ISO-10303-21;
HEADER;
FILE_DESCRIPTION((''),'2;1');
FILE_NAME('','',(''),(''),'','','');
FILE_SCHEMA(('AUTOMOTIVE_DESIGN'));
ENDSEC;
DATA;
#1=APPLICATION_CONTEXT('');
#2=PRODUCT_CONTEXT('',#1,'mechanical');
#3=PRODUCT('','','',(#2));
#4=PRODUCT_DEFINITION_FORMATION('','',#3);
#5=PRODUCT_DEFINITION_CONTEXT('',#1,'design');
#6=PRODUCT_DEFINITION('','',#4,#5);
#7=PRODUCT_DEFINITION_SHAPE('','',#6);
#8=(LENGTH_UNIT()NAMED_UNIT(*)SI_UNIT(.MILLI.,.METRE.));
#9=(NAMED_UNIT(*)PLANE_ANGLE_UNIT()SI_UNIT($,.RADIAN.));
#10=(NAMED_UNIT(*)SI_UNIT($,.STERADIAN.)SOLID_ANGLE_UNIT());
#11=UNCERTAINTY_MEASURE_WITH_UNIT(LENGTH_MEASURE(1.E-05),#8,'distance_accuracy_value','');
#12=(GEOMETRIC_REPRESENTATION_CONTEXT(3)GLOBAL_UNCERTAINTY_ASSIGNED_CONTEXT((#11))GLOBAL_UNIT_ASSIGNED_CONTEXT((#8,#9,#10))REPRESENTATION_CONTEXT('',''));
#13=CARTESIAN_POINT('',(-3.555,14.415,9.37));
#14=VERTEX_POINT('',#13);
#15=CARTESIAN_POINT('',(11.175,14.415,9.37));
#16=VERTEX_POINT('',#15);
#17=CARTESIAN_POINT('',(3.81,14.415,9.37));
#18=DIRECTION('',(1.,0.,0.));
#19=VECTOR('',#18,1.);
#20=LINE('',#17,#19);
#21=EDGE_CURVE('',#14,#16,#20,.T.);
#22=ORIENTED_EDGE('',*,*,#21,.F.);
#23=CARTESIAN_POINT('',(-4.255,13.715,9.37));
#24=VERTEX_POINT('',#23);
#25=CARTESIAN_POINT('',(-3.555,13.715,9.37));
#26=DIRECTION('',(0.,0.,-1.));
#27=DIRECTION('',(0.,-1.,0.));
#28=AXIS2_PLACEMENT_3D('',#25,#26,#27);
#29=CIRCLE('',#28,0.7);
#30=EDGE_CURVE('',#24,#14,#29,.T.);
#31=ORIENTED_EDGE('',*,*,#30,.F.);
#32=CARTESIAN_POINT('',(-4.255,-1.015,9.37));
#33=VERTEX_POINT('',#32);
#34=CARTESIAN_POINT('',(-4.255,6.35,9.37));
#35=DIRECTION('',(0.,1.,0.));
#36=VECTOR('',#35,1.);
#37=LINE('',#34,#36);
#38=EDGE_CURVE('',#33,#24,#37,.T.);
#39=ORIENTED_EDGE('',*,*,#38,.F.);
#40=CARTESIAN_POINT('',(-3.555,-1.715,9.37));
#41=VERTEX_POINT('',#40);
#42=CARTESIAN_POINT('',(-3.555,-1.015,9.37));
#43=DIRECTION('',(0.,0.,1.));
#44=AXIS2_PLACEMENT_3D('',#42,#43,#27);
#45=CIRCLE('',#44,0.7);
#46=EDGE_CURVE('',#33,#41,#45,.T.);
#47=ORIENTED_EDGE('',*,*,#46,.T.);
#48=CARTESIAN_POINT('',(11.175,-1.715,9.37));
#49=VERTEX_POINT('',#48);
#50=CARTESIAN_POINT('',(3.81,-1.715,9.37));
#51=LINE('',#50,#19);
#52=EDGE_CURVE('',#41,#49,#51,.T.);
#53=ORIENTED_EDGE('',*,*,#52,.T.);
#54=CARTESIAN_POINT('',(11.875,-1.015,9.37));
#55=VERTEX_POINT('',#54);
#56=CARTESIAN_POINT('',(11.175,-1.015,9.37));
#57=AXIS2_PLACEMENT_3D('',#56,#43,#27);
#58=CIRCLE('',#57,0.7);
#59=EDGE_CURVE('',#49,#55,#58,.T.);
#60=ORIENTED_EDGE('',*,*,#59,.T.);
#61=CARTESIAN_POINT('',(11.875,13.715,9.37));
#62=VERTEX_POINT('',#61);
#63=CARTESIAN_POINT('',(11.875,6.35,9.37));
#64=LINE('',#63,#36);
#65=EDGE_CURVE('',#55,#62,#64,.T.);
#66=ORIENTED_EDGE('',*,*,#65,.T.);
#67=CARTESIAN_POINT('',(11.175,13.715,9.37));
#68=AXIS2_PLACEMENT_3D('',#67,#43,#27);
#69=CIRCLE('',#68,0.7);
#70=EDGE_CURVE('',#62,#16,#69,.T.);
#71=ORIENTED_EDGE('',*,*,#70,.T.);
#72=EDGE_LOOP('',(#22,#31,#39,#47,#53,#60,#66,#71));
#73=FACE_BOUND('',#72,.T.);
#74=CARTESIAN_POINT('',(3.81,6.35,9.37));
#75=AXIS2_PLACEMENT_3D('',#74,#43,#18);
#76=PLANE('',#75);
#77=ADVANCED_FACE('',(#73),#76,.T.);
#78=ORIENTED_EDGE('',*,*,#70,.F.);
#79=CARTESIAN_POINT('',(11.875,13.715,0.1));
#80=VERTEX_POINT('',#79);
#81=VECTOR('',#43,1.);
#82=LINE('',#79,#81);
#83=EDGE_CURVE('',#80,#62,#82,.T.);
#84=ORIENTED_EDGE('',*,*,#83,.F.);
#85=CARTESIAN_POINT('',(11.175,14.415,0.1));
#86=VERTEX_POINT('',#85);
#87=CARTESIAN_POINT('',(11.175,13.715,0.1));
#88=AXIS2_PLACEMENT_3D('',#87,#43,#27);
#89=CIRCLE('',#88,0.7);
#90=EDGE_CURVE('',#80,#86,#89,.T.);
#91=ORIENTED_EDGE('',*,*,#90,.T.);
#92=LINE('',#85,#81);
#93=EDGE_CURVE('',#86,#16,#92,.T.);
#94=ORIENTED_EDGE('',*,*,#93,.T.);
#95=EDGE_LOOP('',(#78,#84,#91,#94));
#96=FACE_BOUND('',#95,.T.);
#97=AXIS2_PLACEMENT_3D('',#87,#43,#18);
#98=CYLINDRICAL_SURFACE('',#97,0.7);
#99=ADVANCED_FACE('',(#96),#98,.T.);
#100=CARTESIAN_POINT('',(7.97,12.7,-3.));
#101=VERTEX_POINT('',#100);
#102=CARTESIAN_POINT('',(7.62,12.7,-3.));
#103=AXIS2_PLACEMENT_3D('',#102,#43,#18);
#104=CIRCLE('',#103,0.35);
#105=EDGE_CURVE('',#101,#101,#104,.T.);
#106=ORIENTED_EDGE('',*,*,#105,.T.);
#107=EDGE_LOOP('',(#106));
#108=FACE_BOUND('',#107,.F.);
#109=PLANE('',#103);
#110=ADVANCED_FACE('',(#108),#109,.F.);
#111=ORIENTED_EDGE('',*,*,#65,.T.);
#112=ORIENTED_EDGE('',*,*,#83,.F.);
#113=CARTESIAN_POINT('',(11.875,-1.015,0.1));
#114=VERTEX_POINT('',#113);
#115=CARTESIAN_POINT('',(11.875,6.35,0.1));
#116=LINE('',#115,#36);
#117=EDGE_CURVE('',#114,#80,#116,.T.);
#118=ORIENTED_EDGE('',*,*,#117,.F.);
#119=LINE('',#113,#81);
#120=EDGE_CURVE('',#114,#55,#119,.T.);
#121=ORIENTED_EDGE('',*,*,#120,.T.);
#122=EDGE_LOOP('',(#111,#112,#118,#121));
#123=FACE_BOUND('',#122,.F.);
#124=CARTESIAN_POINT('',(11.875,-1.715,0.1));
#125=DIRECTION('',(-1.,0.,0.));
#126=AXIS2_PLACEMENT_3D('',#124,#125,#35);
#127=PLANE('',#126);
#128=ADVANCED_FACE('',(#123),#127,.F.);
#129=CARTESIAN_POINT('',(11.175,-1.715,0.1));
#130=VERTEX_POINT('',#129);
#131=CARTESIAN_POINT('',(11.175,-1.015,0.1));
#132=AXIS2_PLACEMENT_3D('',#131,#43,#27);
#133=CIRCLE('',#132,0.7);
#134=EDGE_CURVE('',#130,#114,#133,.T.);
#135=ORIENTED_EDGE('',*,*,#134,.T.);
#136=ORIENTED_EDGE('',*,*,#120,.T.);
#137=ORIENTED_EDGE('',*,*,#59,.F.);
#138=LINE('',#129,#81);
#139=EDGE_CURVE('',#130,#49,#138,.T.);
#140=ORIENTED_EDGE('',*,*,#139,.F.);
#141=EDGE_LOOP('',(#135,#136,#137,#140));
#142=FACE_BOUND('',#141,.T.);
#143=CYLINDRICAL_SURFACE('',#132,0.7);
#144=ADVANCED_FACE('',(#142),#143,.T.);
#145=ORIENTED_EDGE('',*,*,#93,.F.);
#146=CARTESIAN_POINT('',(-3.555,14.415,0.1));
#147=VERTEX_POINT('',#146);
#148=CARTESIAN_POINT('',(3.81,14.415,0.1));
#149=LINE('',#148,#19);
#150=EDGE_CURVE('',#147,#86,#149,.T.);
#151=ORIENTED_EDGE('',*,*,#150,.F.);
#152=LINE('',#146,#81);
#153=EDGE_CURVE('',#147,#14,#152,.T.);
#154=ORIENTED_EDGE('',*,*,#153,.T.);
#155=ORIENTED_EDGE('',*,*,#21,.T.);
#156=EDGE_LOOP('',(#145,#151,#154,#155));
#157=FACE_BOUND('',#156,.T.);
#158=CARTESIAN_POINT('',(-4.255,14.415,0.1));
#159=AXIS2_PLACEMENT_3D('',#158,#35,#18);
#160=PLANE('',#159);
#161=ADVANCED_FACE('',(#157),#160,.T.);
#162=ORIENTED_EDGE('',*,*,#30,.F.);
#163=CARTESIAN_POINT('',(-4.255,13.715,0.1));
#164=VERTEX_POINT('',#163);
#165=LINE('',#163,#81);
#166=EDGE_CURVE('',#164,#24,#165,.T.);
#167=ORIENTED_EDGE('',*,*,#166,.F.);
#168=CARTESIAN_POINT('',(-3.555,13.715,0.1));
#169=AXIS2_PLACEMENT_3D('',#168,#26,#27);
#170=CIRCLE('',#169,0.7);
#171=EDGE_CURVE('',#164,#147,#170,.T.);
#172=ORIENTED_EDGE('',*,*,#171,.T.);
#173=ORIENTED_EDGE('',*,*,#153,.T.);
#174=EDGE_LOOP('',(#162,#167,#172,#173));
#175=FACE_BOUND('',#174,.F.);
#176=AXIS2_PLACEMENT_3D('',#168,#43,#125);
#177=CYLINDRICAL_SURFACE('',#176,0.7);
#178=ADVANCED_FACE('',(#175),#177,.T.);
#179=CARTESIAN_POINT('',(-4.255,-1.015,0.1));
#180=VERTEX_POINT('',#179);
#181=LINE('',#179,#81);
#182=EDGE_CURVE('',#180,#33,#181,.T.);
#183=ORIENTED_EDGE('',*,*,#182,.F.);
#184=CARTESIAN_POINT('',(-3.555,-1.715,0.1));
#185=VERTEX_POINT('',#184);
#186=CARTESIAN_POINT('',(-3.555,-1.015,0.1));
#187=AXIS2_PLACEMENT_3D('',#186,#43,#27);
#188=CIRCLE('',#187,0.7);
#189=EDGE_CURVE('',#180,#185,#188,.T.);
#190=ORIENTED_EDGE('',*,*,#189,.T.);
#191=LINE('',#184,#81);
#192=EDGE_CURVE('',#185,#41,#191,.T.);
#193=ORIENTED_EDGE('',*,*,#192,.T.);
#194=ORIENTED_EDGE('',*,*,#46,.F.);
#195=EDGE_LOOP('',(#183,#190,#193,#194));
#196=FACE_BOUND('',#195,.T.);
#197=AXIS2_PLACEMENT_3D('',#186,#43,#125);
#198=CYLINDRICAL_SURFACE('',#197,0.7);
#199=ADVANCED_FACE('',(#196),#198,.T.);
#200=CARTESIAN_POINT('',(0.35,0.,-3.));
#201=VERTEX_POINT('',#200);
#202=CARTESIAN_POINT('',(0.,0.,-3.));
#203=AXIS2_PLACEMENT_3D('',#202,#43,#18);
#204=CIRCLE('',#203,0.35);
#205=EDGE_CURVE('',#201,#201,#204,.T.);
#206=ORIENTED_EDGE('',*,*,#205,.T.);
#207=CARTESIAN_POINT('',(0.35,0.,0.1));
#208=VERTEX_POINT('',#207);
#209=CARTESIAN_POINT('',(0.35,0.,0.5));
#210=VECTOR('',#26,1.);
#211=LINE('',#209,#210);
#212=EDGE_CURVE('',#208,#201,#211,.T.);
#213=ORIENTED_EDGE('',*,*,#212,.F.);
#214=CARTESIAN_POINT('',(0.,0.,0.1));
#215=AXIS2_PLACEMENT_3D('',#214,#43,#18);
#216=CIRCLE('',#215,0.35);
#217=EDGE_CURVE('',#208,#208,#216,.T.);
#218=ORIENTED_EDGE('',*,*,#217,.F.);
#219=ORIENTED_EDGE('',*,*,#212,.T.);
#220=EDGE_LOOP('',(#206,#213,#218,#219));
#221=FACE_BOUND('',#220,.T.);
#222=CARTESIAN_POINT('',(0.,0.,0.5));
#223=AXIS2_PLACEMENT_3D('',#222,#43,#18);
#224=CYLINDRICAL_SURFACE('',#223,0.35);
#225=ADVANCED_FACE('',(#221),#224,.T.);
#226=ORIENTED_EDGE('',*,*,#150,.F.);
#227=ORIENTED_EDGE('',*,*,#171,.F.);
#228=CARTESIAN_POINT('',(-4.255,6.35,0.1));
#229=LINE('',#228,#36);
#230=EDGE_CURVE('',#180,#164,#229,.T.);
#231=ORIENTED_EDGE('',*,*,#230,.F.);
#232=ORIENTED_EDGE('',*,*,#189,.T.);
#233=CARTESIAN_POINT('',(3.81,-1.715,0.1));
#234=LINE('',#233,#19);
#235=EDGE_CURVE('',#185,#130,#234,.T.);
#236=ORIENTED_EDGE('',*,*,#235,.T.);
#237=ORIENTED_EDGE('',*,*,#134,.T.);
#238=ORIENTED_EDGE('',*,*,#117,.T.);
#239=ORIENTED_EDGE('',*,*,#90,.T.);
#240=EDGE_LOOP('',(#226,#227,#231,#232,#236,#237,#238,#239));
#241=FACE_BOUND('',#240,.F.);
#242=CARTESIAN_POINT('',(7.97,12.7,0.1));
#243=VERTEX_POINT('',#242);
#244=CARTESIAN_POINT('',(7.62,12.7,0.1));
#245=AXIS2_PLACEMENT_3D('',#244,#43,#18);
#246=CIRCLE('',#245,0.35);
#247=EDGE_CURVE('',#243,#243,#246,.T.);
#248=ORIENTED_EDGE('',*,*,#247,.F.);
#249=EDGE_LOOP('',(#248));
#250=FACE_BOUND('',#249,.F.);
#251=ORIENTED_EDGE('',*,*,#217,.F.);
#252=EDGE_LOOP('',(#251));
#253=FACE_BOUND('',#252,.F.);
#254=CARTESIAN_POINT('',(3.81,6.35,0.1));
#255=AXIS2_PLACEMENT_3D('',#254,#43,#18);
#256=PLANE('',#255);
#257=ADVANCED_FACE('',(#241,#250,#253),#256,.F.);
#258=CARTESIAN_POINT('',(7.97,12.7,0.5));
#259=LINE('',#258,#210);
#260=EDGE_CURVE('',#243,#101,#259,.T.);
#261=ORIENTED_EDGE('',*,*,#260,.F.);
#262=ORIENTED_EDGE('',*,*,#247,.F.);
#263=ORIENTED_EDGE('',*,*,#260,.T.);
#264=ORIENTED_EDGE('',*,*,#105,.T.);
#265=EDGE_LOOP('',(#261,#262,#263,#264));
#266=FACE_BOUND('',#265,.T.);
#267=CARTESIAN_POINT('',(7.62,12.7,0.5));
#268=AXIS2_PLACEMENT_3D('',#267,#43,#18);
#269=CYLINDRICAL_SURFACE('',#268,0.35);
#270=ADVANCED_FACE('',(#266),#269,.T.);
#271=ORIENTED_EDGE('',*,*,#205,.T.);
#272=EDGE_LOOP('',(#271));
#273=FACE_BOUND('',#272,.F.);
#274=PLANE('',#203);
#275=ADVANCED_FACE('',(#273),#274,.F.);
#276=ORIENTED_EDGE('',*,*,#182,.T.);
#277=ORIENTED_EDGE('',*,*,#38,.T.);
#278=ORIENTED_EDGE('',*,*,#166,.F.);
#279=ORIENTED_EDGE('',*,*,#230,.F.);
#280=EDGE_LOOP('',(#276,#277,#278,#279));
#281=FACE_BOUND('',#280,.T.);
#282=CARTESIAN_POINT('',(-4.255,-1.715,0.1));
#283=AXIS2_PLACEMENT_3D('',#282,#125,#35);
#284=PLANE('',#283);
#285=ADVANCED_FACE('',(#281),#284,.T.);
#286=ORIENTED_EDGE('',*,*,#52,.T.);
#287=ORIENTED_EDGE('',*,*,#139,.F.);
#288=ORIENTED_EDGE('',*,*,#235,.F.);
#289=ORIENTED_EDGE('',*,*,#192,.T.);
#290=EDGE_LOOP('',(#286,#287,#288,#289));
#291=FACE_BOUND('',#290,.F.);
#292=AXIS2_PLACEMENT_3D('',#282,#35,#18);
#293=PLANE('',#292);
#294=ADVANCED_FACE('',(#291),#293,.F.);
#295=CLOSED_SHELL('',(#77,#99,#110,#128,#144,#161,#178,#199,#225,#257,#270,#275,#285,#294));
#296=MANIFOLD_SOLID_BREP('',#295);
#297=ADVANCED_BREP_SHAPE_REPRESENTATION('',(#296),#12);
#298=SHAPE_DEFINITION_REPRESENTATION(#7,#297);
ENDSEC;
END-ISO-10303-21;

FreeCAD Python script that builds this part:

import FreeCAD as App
import Part
import Sketcher

V = App.Vector
Q = App.Units.Quantity


def edges_at(feature, points):
    """Names of the edges that pass closest to the given points."""
    edges = feature.Shape.Edges
    near = lambda p: min(range(len(edges)), key=lambda i: edges[i].distToShape(Part.Vertex(*p))[0])
    return sorted({f"Edge{near(p) + 1}" for p in points})


def add_polygon(sketch, points):
    """Adds a closed chain of lines whose ends are joined by coincident constraints."""
    first, n = sketch.GeometryCount, len(points)
    for a, b in zip(points, points[1:] + points[:1]):
        sketch.addGeometry(Part.LineSegment(App.Vector(*a, 0), App.Vector(*b, 0)), False)
    for i in range(n):
        sketch.addConstraint(Sketcher.Constraint("Coincident", first + i, 2, first + (i + 1) % n, 1))

doc = App.newDocument("Part")
body = doc.addObject("PartDesign::Body", "Body")
body.AllowCompound = True

# Sketch on XY plane
sketch1 = doc.addObject("Sketcher::SketchObject", "Sketch")
body.addObject(sketch1)
sketch1.AttachmentSupport = (doc.XY_Plane, [""])
sketch1.MapMode = "FlatFace"
sketch1.AttachmentOffset = App.Placement(V(0, 0, 0.5), App.Rotation())
sketch1.addGeometry(Part.Circle(V(0, 0, 0), V(0, 0, 1), 0.35), False)
sketch1.addGeometry(Part.Circle(V(7.62, 12.7, 0), V(0, 0, 1), 0.35), False)
sketch1.addConstraint(Sketcher.Constraint("Coincident", 0, 3, -1, 1))
sketch1.addConstraint(Sketcher.Constraint("Equal", 0, 1))
sketch1.addConstraint(Sketcher.Constraint("Diameter", 0, Q("0.7 mm")))
sketch1.addConstraint(Sketcher.Constraint("DistanceY", -1, 1, 1, 3, Q("12.7 mm")))
sketch1.addConstraint(Sketcher.Constraint("DistanceX", -1, 1, 1, 3, Q("7.62 mm")))
pad1 = doc.addObject("PartDesign::Pad", "Pad")
body.addObject(pad1)
pad1.Profile = sketch1
pad1.Length = 3.5
pad1.Reversed = True
body2 = doc.addObject("PartDesign::Body", "Body001")

# Sketch on XY plane
sketch2 = doc.addObject("Sketcher::SketchObject", "Sketch001")
body2.addObject(sketch2)
sketch2.AttachmentSupport = (doc.getObject("XY_Plane001"), [""])
sketch2.MapMode = "FlatFace"
sketch2.AttachmentOffset = App.Placement(V(0, 0, 0.1), App.Rotation())
add_polygon(sketch2, [(-4, 14), (-4, -2), (12, -2), (12, 14)])  # lines 0-3
sketch2.addConstraint(Sketcher.Constraint("Vertical", 0))
sketch2.addConstraint(Sketcher.Constraint("Horizontal", 1))
sketch2.addConstraint(Sketcher.Constraint("Vertical", 2))
sketch2.addConstraint(Sketcher.Constraint("Horizontal", 3))
sketch2.addConstraint(Sketcher.Constraint("Equal", 3, 0))
sketch2.addConstraint(Sketcher.Constraint("DistanceX", 1, 1, 1, 2, Q("16.13 mm")))
sketch2.addConstraint(Sketcher.Constraint("DistanceX", 0, 2, -1, 1, Q("4.255 mm")))
sketch2.addConstraint(Sketcher.Constraint("DistanceY", 0, 2, -1, 1, Q("1.715 mm")))
pad2 = doc.addObject("PartDesign::Pad", "Pad001")
body2.addObject(pad2)
pad2.Profile = sketch2
pad2.Length = 9.27
doc.recompute()

fillet = doc.addObject("PartDesign::Fillet", "Fillet")
body2.addObject(fillet)
fillet.Base = (pad2, edges_at(pad2, [
    (11.875, -1.715, 4.735),
    (11.875, 14.415, 4.735),
    (-4.255, -1.715, 4.735),
    (-4.255, 14.415, 4.735),
]))
fillet.Radius = 0.7
doc.recompute()

boolean = doc.addObject("PartDesign::Boolean", "Boolean")
body2.addObject(boolean)
boolean.Type = "Fuse"
boolean.addObjects([body])

doc.recompute()
